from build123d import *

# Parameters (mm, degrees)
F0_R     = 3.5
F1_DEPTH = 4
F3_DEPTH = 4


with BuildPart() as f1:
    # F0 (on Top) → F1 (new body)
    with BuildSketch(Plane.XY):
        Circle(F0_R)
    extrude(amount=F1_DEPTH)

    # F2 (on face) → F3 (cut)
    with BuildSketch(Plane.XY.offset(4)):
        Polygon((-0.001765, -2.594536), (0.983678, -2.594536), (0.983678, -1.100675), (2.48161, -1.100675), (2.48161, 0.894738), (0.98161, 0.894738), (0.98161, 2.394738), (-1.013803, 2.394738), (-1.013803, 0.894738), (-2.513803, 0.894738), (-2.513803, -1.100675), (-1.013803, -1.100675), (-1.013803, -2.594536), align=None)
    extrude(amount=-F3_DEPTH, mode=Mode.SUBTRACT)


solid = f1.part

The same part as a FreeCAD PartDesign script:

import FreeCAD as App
import Part
import Sketcher
from FreeCAD import Vector
Q = App.Units.Quantity


def add_polygon(sketch, points):
    """Adds a closed chain of lines whose ends are joined by coincident constraints."""
    first, n = sketch.GeometryCount, len(points)
    for a, b in zip(points, points[1:] + points[:1]):
        sketch.addGeometry(Part.LineSegment(App.Vector(*a, 0), App.Vector(*b, 0)), False)
    for i in range(n):
        sketch.addConstraint(Sketcher.Constraint("Coincident", first + i, 2, first + (i + 1) % n, 1))

doc = App.newDocument("Part")
params = doc.addObject("Spreadsheet::Sheet", "Params")
for row, (alias, value) in enumerate([
    ("sketch1_diameter", "7 mm"),
    ("pad1_length", "4 mm"),
    ("sketch2_width", "1.5 mm"),
    ("pocket1_length", "4 mm"),
], start=1):
    params.set(f"A{row}", alias)
    params.set(f"B{row}", "=" + value)
    params.setAlias(f"B{row}", alias)

body = doc.addObject("PartDesign::Body", "Body")

# Sketch on XY plane
sketch1 = body.newObject("Sketcher::SketchObject", "Sketch")
sketch1.AttachmentSupport = (doc.getObject("XY_Plane"), [""])
sketch1.MapMode = "FlatFace"
sketch1.addGeometry(Part.Circle(Vector(0, 0, 0), Vector(0, 0, 1), 3.5), False)
sketch1.addConstraint([
    Sketcher.Constraint("Coincident", 0, 3, -1, 1),
    Sketcher.Constraint("Diameter", 0, Q("7 mm")),
])
sketch1.setExpression("Constraints[1]", "Params.sketch1_diameter")
pad1 = body.newObject("PartDesign::Pad", "Pad")
pad1.Profile = sketch1
pad1.setExpression("Length", "Params.pad1_length")

# Sketch on XY plane
sketch2 = body.newObject("Sketcher::SketchObject", "Sketch001")
sketch2.AttachmentSupport = (doc.getObject("XY_Plane"), [""])
sketch2.MapMode = "FlatFace"
sketch2.AttachmentOffset = App.Placement(Vector(0, 0, 4), App.Rotation())
add_polygon(sketch2, [(1, -2.6), (1, -1.1), (2.5, -1.1), (2.5, 0.9), (1, 0.9), (1, 2.4), (-1, 2.4), (-1, 0.9), (-2.5, 0.9), (-2.5, -1.1), (-1, -1.1), (-1, -2.6)])  # lines 0-11
sketch2.addConstraint([
    Sketcher.Constraint("Vertical", 0),
    Sketcher.Constraint("Horizontal", 1),
    Sketcher.Constraint("Vertical", 2),
    Sketcher.Constraint("Horizontal", 3),
    Sketcher.Constraint("Vertical", 4),
    Sketcher.Constraint("Horizontal", 5),
    Sketcher.Constraint("Vertical", 6),
    Sketcher.Constraint("Horizontal", 7),
    Sketcher.Constraint("Vertical", 8),
    Sketcher.Constraint("Horizontal", 9),
    Sketcher.Constraint("Vertical", 10),
    Sketcher.Constraint("Horizontal", 11),
    Sketcher.Constraint("Horizontal", 3, 2, 6, 2),
    Sketcher.Constraint("Horizontal", 1, 2, 8, 2),
    Sketcher.Constraint("Vertical", 6, 2, 9, 2),
    Sketcher.Constraint("Equal", 3, 7),
    Sketcher.Constraint("Equal", 5, 2),
    Sketcher.Constraint("Equal", 9, 4),
    Sketcher.Constraint("DistanceX", 3, 2, 3, 1, Q("1.5 mm")),
    Sketcher.Constraint("DistanceX", 1, 1, 1, 2, Q("1.497932 mm")),
    Sketcher.Constraint("DistanceX", 11, 1, 11, 2, Q("1.997481 mm")),
    Sketcher.Constraint("DistanceY", 0, 1, 0, 2, Q("1.493861 mm")),
    Sketcher.Constraint("DistanceX", -1, 1, 0, 2, Q("0.983678 mm")),
    Sketcher.Constraint("DistanceY", -1, 1, 2, 2, Q("0.894738 mm")),
])
sketch2.setExpression("Constraints[30]", "Params.sketch2_width")
pocket1 = body.newObject("PartDesign::Pocket", "Pocket")
pocket1.Profile = sketch2
pocket1.setExpression("Length", "Params.pocket1_length")

doc.recompute()
